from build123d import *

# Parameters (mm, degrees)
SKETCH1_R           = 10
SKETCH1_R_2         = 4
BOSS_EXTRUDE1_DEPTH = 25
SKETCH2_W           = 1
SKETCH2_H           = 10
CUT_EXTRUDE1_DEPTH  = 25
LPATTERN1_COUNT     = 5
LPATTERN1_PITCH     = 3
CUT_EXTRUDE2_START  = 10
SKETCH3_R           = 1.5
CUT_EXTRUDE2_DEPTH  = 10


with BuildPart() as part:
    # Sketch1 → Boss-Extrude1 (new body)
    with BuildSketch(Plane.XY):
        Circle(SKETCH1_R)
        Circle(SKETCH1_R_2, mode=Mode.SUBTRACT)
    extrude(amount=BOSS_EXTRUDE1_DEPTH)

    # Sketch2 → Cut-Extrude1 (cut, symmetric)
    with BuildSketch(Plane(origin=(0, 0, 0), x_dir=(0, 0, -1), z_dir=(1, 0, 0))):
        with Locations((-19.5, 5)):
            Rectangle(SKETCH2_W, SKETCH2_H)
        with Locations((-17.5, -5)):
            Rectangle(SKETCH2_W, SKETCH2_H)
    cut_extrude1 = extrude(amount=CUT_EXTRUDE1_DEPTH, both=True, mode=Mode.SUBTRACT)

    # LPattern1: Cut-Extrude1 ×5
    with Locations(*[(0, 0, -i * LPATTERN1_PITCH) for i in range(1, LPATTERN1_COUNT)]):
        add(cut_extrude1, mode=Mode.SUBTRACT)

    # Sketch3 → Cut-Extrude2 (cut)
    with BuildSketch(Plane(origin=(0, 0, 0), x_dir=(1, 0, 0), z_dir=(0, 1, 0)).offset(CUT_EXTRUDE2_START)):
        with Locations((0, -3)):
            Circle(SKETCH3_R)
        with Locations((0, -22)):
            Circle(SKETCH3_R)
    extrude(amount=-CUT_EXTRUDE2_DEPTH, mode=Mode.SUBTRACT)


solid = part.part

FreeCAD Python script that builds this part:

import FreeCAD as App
import Part
import Sketcher

V = App.Vector

doc = App.newDocument("Part")
body = doc.addObject("PartDesign::Body", "Body")
body.AllowCompound = True

# Sketch on XY plane
sketch1 = body.newObject("Sketcher::SketchObject", "Sketch")
sketch1.AttachmentSupport = (doc.getObject("XY_Plane"), [""])
sketch1.MapMode = "FlatFace"
sketch1.addGeometry(Part.Circle(V(0, 0, 0), V(0, 0, 1), 10), False)
sketch1.addGeometry(Part.Circle(V(0, 0, 0), V(0, 0, 1), 4), False)
sketch1.addConstraint(Sketcher.Constraint("Coincident", 0, 3, -1, 1))
sketch1.addConstraint(Sketcher.Constraint("Coincident", 1, 3, -1, 1))
sketch1.addConstraint(Sketcher.Constraint("Diameter", 0, 20.0))
sketch1.addConstraint(Sketcher.Constraint("Diameter", 1, 8.0))
pad1 = body.newObject("PartDesign::Pad", "Pad")
pad1.Profile = sketch1
pad1.Length = 25

# Sketch on YZ plane
sketch2 = body.newObject("Sketcher::SketchObject", "Sketch001")
sketch2.AttachmentSupport = (doc.getObject("YZ_Plane"), [""])
sketch2.MapMode = "FlatFace"
sketch2.addGeometry(Part.LineSegment(V(10, 20, 0), V(0, 20, 0)), False)
sketch2.addGeometry(Part.LineSegment(V(0, 20, 0), V(0, 19, 0)), False)
sketch2.addGeometry(Part.LineSegment(V(0, 19, 0), V(10, 19, 0)), False)
sketch2.addGeometry(Part.LineSegment(V(10, 19, 0), V(10, 20, 0)), False)
sketch2.addGeometry(Part.LineSegment(V(0, 18, 0), V(-10, 18, 0)), False)
sketch2.addGeometry(Part.LineSegment(V(-10, 18, 0), V(-10, 17, 0)), False)
sketch2.addGeometry(Part.LineSegment(V(-10, 17, 0), V(0, 17, 0)), False)
sketch2.addGeometry(Part.LineSegment(V(0, 17, 0), V(0, 18, 0)), False)
sketch2.addConstraint(Sketcher.Constraint("Coincident", 0, 2, 1, 1))
sketch2.addConstraint(Sketcher.Constraint("Coincident", 1, 2, 2, 1))
sketch2.addConstraint(Sketcher.Constraint("Coincident", 2, 2, 3, 1))
sketch2.addConstraint(Sketcher.Constraint("Coincident", 3, 2, 0, 1))
sketch2.addConstraint(Sketcher.Constraint("Coincident", 4, 2, 5, 1))
sketch2.addConstraint(Sketcher.Constraint("Coincident", 5, 2, 6, 1))
sketch2.addConstraint(Sketcher.Constraint("Coincident", 6, 2, 7, 1))
sketch2.addConstraint(Sketcher.Constraint("Coincident", 7, 2, 4, 1))
sketch2.addConstraint(Sketcher.Constraint("Horizontal", 0))
sketch2.addConstraint(Sketcher.Constraint("Vertical", 1))
sketch2.addConstraint(Sketcher.Constraint("Horizontal", 2))
sketch2.addConstraint(Sketcher.Constraint("Vertical", 3))
sketch2.addConstraint(Sketcher.Constraint("Horizontal", 4))
sketch2.addConstraint(Sketcher.Constraint("Vertical", 5))
sketch2.addConstraint(Sketcher.Constraint("Horizontal", 6))
sketch2.addConstraint(Sketcher.Constraint("Vertical", 7))
sketch2.addConstraint(Sketcher.Constraint("PointOnObject", 0, 2, -2))
sketch2.addConstraint(Sketcher.Constraint("PointOnObject", 6, 2, -2))
sketch2.addConstraint(Sketcher.Constraint("Equal", 2, 4))
sketch2.addConstraint(Sketcher.Constraint("Equal", 3, 5))
sketch2.addConstraint(Sketcher.Constraint("DistanceX", 0, 2, 0, 1, 10.0))
sketch2.addConstraint(Sketcher.Constraint("DistanceY", 1, 2, 1, 1, 1.0))
sketch2.addConstraint(Sketcher.Constraint("DistanceY", -1, 1, 0, 2, 20.0))
sketch2.addConstraint(Sketcher.Constraint("DistanceY", -1, 1, 4, 2, 18.0))
pocket1 = body.newObject("PartDesign::Pocket", "Pocket")
pocket1.Profile = sketch2
pocket1.Length = 50
pocket1.Midplane = True
doc.recompute()

linearpattern = body.newObject("PartDesign::LinearPattern", "LinearPattern")
linearpattern.Originals = [pocket1]
linearpattern.Direction = (doc.getObject("Z_Axis"), [""])
linearpattern.Mode = "offset"
linearpattern.Offset = 3
linearpattern.Occurrences = 5
linearpattern.Reversed = True
body.Tip = linearpattern

# Sketch on XZ plane
sketch3 = body.newObject("Sketcher::SketchObject", "Sketch002")
sketch3.AttachmentSupport = (doc.getObject("XZ_Plane"), [""])
sketch3.MapMode = "FlatFace"
sketch3.AttachmentOffset = App.Placement(V(0, 0, -10), App.Rotation())
sketch3.addGeometry(Part.Circle(V(0, 3, 0), V(0, 0, 1), 1.5), False)
sketch3.addGeometry(Part.Circle(V(0, 22, 0), V(0, 0, 1), 1.5), False)
sketch3.addConstraint(Sketcher.Constraint("Equal", 0, 1))
sketch3.addConstraint(Sketcher.Constraint("PointOnObject", 0, 3, -2))
sketch3.addConstraint(Sketcher.Constraint("PointOnObject", 1, 3, -2))
sketch3.addConstraint(Sketcher.Constraint("Diameter", 0, 3.0))
sketch3.addConstraint(Sketcher.Constraint("DistanceY", -1, 1, 0, 3, 3.0))
sketch3.addConstraint(Sketcher.Constraint("DistanceY", -1, 1, 1, 3, 22.0))
pocket2 = body.newObject("PartDesign::Pocket", "Pocket001")
pocket2.Profile = sketch3
pocket2.Length = 10
pocket2.Reversed = True

doc.recompute()
